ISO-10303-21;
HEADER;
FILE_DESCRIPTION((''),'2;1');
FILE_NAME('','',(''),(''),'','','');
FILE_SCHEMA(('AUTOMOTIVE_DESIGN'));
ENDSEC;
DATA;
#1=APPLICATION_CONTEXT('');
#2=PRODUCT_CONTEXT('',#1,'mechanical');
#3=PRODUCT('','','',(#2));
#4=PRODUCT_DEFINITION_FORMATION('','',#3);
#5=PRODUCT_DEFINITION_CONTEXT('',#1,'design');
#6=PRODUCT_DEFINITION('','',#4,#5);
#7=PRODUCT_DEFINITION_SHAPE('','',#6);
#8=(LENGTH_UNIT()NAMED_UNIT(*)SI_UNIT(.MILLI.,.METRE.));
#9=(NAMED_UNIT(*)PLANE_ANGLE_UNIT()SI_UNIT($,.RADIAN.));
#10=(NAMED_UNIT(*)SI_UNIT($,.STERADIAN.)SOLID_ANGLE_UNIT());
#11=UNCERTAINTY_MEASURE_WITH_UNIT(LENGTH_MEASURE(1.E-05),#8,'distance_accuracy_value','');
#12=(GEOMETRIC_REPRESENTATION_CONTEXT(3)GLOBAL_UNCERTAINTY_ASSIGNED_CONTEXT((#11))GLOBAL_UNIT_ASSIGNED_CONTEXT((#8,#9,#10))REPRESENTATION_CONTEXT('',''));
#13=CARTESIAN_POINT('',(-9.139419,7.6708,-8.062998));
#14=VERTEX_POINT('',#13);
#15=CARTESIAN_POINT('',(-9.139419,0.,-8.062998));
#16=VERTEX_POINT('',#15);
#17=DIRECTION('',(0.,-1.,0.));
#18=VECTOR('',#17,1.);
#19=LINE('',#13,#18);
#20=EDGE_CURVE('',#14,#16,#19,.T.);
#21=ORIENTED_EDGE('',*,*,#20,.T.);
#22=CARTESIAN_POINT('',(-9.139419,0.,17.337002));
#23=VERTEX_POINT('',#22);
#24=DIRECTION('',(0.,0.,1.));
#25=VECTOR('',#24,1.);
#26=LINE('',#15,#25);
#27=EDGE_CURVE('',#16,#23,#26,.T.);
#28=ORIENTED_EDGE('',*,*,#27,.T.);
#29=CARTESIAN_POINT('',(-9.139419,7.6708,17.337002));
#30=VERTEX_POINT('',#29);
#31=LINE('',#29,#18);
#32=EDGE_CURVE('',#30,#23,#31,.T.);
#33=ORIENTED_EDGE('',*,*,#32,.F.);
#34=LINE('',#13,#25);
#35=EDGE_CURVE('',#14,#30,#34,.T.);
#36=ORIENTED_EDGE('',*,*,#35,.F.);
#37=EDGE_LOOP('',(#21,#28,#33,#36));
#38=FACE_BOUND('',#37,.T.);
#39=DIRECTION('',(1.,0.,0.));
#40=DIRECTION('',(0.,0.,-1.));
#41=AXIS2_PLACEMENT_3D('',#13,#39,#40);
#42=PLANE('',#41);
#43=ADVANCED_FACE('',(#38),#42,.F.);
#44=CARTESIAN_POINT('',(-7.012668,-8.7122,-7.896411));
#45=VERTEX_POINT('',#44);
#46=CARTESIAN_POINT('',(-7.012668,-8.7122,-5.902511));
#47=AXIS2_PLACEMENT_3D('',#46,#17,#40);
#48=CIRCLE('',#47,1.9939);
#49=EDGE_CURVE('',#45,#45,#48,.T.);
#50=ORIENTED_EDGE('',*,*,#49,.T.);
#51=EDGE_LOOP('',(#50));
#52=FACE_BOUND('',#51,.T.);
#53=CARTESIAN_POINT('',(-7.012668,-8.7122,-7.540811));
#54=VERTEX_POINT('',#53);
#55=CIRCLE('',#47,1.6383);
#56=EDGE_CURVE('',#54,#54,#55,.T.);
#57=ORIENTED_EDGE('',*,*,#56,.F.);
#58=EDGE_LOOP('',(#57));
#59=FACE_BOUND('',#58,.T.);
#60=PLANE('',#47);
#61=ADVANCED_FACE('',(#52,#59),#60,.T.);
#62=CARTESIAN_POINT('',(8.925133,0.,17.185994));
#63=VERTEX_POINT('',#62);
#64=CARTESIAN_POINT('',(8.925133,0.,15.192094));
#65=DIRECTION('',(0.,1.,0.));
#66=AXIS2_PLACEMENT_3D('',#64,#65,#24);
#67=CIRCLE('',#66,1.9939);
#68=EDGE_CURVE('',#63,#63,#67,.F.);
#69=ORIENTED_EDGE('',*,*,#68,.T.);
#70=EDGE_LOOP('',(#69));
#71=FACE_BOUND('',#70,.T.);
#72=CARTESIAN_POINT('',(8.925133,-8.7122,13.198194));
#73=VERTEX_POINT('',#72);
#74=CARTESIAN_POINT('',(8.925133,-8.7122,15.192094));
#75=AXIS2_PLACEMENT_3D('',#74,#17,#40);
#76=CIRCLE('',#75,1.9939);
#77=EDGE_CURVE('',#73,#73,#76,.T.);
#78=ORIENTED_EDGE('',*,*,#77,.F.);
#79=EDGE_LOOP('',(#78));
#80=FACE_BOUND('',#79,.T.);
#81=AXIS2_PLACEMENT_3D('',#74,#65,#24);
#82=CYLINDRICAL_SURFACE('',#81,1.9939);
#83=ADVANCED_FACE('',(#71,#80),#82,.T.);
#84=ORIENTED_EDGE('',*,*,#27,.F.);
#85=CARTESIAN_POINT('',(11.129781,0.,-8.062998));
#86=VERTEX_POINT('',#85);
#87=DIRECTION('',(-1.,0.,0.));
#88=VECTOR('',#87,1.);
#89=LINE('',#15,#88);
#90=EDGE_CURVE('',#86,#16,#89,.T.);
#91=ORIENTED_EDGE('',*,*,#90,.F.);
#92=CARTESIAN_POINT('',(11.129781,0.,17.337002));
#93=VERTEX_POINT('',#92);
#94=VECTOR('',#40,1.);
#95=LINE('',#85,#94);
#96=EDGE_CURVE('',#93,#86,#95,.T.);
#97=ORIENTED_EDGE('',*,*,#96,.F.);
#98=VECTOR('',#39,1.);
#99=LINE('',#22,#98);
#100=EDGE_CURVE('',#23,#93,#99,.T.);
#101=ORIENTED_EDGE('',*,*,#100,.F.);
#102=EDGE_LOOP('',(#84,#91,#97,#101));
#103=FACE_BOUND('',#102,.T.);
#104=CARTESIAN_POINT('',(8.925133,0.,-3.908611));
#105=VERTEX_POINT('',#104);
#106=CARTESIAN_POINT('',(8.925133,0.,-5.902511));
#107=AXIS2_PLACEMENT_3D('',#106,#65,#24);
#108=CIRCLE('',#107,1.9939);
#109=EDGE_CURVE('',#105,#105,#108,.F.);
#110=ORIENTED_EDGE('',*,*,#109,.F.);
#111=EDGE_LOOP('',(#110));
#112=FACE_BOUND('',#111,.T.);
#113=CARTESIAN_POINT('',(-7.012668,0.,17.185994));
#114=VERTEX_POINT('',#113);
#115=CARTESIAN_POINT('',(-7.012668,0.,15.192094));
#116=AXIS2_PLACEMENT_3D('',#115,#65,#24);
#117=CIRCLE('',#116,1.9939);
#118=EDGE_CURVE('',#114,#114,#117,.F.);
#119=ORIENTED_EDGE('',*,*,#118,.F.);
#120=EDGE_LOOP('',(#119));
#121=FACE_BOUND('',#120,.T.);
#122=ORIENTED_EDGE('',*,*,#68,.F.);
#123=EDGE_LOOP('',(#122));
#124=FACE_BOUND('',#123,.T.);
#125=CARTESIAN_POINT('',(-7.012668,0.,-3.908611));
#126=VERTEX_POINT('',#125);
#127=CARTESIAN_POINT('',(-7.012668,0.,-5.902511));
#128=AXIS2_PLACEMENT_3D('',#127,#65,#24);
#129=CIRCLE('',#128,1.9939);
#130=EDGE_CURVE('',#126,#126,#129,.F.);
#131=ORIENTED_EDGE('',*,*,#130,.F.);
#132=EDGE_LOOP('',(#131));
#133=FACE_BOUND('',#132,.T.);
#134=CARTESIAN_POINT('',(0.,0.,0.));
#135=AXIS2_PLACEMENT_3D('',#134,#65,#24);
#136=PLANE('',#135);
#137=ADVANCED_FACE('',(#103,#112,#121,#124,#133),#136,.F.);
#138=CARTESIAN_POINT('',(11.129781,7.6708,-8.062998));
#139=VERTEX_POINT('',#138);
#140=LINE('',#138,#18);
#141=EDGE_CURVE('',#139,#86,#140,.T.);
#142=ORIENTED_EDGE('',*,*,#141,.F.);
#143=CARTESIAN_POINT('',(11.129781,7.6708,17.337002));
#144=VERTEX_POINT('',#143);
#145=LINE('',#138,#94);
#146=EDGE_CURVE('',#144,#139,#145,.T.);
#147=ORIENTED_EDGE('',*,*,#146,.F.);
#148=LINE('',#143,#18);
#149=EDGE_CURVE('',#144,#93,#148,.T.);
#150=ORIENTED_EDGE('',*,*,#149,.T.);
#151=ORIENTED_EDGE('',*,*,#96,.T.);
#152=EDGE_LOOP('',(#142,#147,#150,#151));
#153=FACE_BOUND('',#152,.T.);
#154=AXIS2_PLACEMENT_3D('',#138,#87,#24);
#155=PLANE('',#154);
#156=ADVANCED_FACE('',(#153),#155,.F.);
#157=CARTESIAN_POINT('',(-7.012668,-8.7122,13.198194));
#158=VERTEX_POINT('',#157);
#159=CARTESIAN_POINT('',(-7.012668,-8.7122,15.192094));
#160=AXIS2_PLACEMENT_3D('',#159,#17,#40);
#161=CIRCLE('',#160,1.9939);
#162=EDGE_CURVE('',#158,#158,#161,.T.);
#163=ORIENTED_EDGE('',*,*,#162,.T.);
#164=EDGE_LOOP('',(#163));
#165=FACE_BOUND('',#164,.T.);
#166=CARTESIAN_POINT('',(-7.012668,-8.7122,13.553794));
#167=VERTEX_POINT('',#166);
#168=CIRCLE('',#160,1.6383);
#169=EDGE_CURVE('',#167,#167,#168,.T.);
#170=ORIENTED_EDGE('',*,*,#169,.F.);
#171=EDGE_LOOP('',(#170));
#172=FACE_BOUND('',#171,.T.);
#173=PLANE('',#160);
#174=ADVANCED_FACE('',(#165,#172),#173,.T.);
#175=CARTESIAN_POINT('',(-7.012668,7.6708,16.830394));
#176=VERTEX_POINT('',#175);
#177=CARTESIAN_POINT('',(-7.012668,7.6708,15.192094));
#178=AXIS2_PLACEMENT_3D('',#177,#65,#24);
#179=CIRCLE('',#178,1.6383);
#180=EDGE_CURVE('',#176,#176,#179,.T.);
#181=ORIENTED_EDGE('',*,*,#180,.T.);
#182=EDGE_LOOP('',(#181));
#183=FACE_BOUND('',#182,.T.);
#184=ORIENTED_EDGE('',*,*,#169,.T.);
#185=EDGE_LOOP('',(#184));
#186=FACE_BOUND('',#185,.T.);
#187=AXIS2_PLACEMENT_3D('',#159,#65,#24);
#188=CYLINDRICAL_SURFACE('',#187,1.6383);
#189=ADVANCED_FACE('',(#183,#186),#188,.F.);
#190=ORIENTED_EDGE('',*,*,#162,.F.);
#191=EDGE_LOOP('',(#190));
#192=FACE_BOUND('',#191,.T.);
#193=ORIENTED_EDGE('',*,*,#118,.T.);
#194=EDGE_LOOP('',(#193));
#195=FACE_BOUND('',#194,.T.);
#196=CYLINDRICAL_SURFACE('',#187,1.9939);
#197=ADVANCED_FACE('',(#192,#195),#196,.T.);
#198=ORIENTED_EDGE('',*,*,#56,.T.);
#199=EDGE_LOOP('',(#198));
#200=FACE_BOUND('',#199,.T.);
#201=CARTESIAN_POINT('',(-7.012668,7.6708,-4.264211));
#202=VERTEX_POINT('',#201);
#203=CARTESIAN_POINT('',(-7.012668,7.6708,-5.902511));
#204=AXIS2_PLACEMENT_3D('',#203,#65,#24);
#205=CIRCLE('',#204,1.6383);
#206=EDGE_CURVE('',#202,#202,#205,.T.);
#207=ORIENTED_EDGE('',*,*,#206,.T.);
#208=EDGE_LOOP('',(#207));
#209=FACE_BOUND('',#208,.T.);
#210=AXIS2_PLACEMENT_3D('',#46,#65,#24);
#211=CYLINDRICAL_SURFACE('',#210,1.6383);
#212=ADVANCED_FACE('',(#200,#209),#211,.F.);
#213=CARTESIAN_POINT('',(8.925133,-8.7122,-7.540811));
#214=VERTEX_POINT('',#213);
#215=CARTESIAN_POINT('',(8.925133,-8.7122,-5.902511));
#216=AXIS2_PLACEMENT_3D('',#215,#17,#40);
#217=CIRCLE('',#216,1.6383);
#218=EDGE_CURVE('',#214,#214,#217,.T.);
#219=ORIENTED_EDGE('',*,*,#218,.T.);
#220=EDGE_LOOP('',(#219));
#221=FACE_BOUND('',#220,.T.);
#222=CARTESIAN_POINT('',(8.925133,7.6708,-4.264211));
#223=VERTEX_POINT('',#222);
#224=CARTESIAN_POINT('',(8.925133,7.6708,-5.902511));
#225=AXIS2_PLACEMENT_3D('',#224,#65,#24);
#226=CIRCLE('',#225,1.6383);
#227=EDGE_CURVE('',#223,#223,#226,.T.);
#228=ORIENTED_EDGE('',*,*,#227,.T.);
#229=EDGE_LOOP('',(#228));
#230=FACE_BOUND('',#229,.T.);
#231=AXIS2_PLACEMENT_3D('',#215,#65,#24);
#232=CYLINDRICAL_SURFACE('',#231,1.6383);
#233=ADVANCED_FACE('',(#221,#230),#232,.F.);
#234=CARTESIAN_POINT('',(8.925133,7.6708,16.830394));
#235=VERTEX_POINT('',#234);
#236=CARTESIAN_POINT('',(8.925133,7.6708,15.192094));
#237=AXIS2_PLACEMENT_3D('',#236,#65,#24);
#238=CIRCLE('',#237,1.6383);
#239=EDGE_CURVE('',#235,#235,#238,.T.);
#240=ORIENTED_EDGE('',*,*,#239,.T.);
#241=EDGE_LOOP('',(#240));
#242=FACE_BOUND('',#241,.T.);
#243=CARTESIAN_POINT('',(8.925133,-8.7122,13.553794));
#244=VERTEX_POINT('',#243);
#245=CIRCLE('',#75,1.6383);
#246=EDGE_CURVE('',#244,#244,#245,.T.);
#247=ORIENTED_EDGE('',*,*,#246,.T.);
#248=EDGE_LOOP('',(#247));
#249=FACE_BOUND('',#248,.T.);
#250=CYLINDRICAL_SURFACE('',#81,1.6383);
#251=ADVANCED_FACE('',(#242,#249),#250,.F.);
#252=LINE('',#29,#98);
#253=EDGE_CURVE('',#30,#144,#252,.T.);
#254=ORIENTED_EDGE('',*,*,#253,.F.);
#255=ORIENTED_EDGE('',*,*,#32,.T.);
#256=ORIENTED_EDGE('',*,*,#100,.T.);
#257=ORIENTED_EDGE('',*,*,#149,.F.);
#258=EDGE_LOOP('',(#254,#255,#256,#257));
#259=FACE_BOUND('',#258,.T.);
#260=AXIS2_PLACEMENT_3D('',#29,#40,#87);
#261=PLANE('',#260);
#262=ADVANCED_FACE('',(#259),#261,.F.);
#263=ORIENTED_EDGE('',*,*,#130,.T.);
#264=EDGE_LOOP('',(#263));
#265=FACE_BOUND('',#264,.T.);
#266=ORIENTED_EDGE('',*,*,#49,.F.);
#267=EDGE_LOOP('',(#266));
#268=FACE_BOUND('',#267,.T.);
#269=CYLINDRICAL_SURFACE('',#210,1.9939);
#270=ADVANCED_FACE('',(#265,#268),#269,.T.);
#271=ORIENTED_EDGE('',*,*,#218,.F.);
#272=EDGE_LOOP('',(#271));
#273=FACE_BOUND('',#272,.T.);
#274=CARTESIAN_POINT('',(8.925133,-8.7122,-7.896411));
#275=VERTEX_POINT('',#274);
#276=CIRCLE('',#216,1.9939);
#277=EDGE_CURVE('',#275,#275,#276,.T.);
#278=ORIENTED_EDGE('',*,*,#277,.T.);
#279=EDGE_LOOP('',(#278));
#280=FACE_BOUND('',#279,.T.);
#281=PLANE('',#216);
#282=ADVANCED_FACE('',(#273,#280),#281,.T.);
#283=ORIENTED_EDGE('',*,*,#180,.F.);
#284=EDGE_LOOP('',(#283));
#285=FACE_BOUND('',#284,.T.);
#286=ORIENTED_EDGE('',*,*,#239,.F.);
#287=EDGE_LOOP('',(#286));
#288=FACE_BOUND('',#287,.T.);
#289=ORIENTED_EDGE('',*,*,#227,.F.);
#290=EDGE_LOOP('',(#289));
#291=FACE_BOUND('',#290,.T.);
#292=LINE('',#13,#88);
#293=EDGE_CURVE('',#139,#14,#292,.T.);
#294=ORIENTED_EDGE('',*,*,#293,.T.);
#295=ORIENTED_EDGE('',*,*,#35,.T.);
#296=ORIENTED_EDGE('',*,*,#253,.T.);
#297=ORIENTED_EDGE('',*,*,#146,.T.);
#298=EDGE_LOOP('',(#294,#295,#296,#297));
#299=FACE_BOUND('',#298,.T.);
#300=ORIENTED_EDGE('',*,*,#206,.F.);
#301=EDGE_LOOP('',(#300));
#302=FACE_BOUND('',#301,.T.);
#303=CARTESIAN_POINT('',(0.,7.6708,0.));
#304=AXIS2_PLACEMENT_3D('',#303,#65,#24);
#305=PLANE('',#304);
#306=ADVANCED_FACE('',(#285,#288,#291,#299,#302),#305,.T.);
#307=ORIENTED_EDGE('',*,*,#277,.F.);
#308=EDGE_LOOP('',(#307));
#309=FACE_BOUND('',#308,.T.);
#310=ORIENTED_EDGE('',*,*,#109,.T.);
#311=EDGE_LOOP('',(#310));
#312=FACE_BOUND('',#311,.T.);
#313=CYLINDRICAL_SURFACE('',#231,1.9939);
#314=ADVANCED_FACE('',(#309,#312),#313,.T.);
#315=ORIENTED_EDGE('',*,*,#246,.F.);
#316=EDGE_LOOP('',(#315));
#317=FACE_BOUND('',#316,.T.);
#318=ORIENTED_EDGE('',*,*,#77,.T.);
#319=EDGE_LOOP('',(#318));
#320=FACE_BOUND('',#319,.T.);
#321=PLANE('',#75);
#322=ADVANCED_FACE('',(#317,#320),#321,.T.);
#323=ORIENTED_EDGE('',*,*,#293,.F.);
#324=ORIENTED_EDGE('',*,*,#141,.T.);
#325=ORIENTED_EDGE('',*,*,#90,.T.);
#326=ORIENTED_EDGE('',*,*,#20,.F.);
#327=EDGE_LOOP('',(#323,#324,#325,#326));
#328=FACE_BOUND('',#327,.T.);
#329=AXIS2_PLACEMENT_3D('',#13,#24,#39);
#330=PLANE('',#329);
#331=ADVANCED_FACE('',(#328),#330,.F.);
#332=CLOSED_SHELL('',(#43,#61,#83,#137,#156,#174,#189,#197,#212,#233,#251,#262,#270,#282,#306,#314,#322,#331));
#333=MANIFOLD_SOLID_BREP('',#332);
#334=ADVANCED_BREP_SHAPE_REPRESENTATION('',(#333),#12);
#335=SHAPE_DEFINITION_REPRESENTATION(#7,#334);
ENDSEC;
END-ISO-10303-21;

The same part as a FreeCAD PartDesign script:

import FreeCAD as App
import Part
import Sketcher
from FreeCAD import Vector
Q = App.Units.Quantity


def add_polygon(sketch, points):
    """Adds a closed chain of lines whose ends are joined by coincident constraints."""
    first, n = sketch.GeometryCount, len(points)
    for a, b in zip(points, points[1:] + points[:1]):
        sketch.addGeometry(Part.LineSegment(App.Vector(*a, 0), App.Vector(*b, 0)), False)
    for i in range(n):
        sketch.addConstraint(Sketcher.Constraint("Coincident", first + i, 2, first + (i + 1) % n, 1))

doc = App.newDocument("Part")
body = doc.addObject("PartDesign::Body", "Body")

# Sketch on XZ plane
sketch1 = body.newObject("Sketcher::SketchObject", "Sketch")
sketch1.AttachmentSupport = (doc.getObject("XZ_Plane"), [""])
sketch1.MapMode = "FlatFace"
add_polygon(sketch1, [(-9, -8), (-9, 17), (11, 17), (11, -8)])  # lines 0-3
sketch1.addConstraint([
    Sketcher.Constraint("Vertical", 0),
    Sketcher.Constraint("Horizontal", 1),
    Sketcher.Constraint("Vertical", 2),
    Sketcher.Constraint("Horizontal", 3),
    Sketcher.Constraint("DistanceY", 0, 1, 0, 2, Q("1 in")),
    Sketcher.Constraint("DistanceX", 1, 1, 1, 2, Q("0.798 in")),
    Sketcher.Constraint("DistanceY", -1, 1, 0, 2, 17.337002),
    Sketcher.Constraint("DistanceX", 0, 2, -1, 1, 9.139419),
])
pad1 = body.newObject("PartDesign::Pad", "Pad")
pad1.Profile = sketch1
pad1.Length = Q("0.302 in")
pad1.Reversed = True

# Sketch on XZ plane
sketch2 = body.newObject("Sketcher::SketchObject", "Sketch001")
sketch2.AttachmentSupport = (doc.getObject("XZ_Plane"), [""])
sketch2.MapMode = "FlatFace"
sketch2.addGeometry([
    Part.Circle(Vector(-7, 15.2, 0), Vector(0, 0, 1), 2),  # 0
    Part.Circle(Vector(-7, 15.2, 0), Vector(0, 0, 1), 1.6),  # 1
    Part.Circle(Vector(8.9, 15.2, 0), Vector(0, 0, 1), 2),  # 2
    Part.Circle(Vector(8.9, 15.2, 0), Vector(0, 0, 1), 1.6),  # 3
    Part.Circle(Vector(8.9, -5.9, 0), Vector(0, 0, 1), 2),  # 4
    Part.Circle(Vector(8.9, -5.9, 0), Vector(0, 0, 1), 1.6),  # 5
    Part.Circle(Vector(-7, -5.9, 0), Vector(0, 0, 1), 2),  # 6
    Part.Circle(Vector(-7, -5.9, 0), Vector(0, 0, 1), 1.6),  # 7
], False)
sketch2.addConstraint([
    Sketcher.Constraint("Coincident", 1, 3, 0, 3),
    Sketcher.Constraint("Coincident", 3, 3, 2, 3),
    Sketcher.Constraint("Coincident", 5, 3, 4, 3),
    Sketcher.Constraint("Coincident", 7, 3, 6, 3),
    Sketcher.Constraint("Equal", 0, 2),
    Sketcher.Constraint("Equal", 1, 3),
    Sketcher.Constraint("Equal", 2, 4),
    Sketcher.Constraint("Equal", 3, 5),
    Sketcher.Constraint("Equal", 4, 6),
    Sketcher.Constraint("Equal", 5, 7),
    Sketcher.Constraint("Horizontal", 1, 3, 2, 3),
    Sketcher.Constraint("Horizontal", 5, 3, 6, 3),
    Sketcher.Constraint("Vertical", 3, 3, 4, 3),
    Sketcher.Constraint("Vertical", 1, 3, 6, 3),
    Sketcher.Constraint("Diameter", 0, Q("0.157 in")),
    Sketcher.Constraint("Diameter", 1, Q("0.129 in")),
    Sketcher.Constraint("DistanceX", 0, 3, 2, 3, 15.9378),
    Sketcher.Constraint("DistanceY", 4, 3, -1, 1, 5.902511),
    Sketcher.Constraint("DistanceX", 0, 3, -1, 1, 7.012668),
    Sketcher.Constraint("DistanceY", -1, 1, 0, 3, 15.192094),
])
pad2 = body.newObject("PartDesign::Pad", "Pad001")
pad2.Profile = sketch2
pad2.Length = Q("0.343 in")

# Sketch on XZ plane
sketch3 = body.newObject("Sketcher::SketchObject", "Sketch002")
sketch3.AttachmentSupport = (doc.getObject("XZ_Plane"), [""])
sketch3.MapMode = "FlatFace"
sketch3.AttachmentOffset = App.Placement(Vector(0, 0, -0.302 * 25.4), App.Rotation())
sketch3.addGeometry([
    Part.Circle(Vector(8.9, -5.9, 0), Vector(0, 0, 1), 1.6),
    Part.Circle(Vector(-7, -5.9, 0), Vector(0, 0, 1), 1.6),
    Part.Circle(Vector(8.9, 15.2, 0), Vector(0, 0, 1), 1.6),
    Part.Circle(Vector(-7, 15.2, 0), Vector(0, 0, 1), 1.6),
], False)
sketch3.addConstraint([
    Sketcher.Constraint("Equal", 0, 1),
    Sketcher.Constraint("Equal", 1, 2),
    Sketcher.Constraint("Equal", 2, 3),
    Sketcher.Constraint("Horizontal", 0, 3, 1, 3),
    Sketcher.Constraint("Horizontal", 2, 3, 3, 3),
    Sketcher.Constraint("Vertical", 0, 3, 2, 3),
    Sketcher.Constraint("Vertical", 1, 3, 3, 3),
    Sketcher.Constraint("Diameter", 0, Q("0.129 in")),
    Sketcher.Constraint("DistanceX", 1, 3, 0, 3, 15.9378),
    Sketcher.Constraint("DistanceY", 0, 3, -1, 1, 5.902511),
    Sketcher.Constraint("DistanceX", -1, 1, 0, 3, 8.925133),
    Sketcher.Constraint("DistanceY", -1, 1, 2, 3, 15.192094),
])
pocket1 = body.newObject("PartDesign::Pocket", "Pocket")
pocket1.Profile = sketch3
pocket1.Type = "ThroughAll"
pocket1.Midplane = True

doc.recompute()
